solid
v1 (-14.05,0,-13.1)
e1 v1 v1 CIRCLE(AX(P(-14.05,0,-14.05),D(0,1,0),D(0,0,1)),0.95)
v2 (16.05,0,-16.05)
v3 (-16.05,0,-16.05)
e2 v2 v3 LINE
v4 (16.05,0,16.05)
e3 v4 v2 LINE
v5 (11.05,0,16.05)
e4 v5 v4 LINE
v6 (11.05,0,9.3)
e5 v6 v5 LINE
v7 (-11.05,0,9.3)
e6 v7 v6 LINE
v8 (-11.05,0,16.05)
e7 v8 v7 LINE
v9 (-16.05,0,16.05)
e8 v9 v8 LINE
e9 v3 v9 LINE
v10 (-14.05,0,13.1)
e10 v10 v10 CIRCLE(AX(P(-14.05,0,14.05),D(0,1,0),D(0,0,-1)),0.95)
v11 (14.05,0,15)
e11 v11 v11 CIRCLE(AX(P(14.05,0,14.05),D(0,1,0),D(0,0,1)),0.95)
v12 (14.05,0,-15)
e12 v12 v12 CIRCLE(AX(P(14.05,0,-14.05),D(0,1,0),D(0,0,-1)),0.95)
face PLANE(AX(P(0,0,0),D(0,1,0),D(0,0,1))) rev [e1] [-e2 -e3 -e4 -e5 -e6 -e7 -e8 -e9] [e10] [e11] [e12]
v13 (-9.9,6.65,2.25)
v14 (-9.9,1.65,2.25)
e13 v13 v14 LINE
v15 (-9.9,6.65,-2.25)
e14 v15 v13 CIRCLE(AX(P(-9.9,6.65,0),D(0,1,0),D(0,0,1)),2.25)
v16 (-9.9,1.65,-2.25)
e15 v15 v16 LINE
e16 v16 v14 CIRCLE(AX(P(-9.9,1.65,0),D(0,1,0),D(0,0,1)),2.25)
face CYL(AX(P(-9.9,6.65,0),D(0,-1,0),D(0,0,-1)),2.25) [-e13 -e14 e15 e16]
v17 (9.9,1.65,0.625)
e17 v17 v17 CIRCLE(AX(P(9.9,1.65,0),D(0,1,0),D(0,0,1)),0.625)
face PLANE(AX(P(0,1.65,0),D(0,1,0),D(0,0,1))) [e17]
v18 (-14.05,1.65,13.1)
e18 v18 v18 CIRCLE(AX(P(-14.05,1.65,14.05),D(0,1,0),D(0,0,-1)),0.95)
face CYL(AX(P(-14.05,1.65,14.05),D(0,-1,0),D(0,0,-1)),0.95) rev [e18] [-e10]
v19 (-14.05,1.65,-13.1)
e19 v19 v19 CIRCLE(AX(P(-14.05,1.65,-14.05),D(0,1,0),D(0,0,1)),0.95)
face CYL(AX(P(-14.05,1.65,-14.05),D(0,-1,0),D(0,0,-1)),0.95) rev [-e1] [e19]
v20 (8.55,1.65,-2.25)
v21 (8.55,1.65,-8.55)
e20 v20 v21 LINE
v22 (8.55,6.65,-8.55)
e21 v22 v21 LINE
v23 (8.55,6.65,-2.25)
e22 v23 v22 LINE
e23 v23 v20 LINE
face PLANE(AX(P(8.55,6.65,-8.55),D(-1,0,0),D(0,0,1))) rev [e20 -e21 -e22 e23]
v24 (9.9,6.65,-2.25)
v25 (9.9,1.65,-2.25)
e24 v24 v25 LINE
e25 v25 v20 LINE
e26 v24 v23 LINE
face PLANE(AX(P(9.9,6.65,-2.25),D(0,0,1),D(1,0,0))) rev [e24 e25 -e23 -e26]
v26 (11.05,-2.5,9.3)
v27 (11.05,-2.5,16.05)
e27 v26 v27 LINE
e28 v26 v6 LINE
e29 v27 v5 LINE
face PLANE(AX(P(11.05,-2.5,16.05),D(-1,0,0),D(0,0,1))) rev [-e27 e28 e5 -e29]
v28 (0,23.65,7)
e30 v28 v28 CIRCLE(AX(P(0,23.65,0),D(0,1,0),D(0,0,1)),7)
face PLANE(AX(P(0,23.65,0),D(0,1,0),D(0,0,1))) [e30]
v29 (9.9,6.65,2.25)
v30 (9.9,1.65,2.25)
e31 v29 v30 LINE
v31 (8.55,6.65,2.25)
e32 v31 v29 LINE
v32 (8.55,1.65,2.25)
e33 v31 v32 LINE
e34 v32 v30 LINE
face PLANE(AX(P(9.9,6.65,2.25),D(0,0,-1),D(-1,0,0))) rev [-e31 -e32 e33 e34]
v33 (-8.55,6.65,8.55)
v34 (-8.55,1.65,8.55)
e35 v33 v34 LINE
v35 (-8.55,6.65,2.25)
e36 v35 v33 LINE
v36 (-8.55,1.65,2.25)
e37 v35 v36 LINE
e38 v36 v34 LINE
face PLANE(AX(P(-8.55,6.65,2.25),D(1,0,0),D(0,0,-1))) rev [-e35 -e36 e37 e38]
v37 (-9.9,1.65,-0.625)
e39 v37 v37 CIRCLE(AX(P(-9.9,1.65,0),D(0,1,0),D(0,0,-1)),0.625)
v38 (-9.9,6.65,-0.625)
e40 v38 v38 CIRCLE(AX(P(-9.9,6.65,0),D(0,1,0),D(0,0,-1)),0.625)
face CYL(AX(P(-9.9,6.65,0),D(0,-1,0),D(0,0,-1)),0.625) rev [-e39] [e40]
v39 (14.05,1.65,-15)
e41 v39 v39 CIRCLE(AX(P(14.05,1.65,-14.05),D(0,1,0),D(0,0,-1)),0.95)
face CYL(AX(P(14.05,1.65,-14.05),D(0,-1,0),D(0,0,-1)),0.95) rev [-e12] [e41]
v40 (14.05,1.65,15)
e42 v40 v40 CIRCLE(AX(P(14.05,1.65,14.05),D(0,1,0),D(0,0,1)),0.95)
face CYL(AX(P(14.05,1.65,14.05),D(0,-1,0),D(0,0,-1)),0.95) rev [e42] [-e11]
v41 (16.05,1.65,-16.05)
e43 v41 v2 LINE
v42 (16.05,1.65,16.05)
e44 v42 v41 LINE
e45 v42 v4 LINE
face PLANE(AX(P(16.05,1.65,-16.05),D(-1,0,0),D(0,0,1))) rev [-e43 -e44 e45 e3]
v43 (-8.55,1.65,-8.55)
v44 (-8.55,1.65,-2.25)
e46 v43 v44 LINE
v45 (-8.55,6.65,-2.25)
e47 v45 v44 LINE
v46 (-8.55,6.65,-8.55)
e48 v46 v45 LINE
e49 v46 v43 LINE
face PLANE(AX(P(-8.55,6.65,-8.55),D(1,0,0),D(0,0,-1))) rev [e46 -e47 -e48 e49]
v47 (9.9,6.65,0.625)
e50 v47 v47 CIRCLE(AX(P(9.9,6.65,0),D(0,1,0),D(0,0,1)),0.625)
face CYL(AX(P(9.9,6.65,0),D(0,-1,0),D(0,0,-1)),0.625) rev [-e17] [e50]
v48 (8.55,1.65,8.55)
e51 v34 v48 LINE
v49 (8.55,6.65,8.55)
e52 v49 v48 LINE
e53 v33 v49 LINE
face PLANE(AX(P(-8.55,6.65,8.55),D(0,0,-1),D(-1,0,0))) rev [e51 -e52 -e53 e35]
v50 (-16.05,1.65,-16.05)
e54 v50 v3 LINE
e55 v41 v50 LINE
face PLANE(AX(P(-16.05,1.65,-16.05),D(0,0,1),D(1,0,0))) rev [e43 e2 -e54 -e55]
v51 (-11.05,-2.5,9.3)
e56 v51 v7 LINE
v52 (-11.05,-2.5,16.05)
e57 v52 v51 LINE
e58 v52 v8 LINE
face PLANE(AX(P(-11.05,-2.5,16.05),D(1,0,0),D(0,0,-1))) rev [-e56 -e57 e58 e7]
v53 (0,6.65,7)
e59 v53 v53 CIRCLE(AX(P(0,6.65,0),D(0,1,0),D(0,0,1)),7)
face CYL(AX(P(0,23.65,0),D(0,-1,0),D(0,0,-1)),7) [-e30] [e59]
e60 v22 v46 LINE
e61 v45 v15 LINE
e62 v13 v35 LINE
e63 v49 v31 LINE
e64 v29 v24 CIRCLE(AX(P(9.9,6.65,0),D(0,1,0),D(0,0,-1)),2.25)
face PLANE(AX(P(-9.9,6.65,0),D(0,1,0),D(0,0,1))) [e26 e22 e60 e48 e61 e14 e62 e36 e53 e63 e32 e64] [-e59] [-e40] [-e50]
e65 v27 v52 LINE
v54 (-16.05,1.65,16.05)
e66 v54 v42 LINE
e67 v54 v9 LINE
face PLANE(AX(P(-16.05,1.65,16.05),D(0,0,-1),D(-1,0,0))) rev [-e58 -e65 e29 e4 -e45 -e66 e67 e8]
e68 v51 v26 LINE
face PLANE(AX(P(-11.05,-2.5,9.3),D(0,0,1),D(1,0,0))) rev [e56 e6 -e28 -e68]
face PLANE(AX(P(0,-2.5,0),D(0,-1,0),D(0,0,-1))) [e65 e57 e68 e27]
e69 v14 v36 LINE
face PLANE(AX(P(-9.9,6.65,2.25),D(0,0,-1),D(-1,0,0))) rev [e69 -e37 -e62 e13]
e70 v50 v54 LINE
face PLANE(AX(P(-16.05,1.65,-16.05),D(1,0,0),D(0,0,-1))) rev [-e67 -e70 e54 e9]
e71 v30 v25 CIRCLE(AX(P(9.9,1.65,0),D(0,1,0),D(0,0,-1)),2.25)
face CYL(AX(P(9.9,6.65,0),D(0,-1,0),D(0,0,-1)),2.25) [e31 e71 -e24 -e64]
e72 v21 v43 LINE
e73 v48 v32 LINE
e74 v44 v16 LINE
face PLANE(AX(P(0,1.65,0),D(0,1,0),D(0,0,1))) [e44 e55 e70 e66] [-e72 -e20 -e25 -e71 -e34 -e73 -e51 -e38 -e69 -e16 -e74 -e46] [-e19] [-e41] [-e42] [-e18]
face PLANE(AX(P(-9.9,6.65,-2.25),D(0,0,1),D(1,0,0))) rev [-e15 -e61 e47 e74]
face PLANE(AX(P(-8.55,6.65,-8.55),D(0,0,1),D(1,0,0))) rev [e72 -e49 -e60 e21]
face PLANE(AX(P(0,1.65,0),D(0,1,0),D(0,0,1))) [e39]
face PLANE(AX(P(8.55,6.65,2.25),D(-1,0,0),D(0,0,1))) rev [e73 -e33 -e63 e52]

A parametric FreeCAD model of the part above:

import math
import FreeCAD as App
import Part
import Sketcher
from FreeCAD import Vector
Q = App.Units.Quantity


def add_polygon(sketch, points):
    """Adds a closed chain of lines whose ends are joined by coincident constraints."""
    first, n = sketch.GeometryCount, len(points)
    for a, b in zip(points, points[1:] + points[:1]):
        sketch.addGeometry(Part.LineSegment(App.Vector(*a, 0), App.Vector(*b, 0)), False)
    for i in range(n):
        sketch.addConstraint(Sketcher.Constraint("Coincident", first + i, 2, first + (i + 1) % n, 1))

doc = App.newDocument("Part")
body = doc.addObject("PartDesign::Body", "Body")

# Sketch on XZ plane
sketch1 = body.newObject("Sketcher::SketchObject", "Sketch")
sketch1.AttachmentSupport = (doc.getObject("XZ_Plane"), [""])
sketch1.MapMode = "FlatFace"
add_polygon(sketch1, [(-16.1, -16.1), (-16.1, 16.1), (16.1, 16.1), (16.1, -16.1)])  # lines 0-3
sketch1.addGeometry(Part.Circle(Vector(-14.1, 14.1, 0), Vector(0, 0, 1), 0.9), False)  # 4
sketch1.addGeometry(Part.Circle(Vector(14.1, 14.1, 0), Vector(0, 0, 1), 0.9), False)  # 5
sketch1.addGeometry(Part.Circle(Vector(-14.1, -14.1, 0), Vector(0, 0, 1), 0.9), False)  # 6
sketch1.addGeometry(Part.Circle(Vector(14.1, -14.1, 0), Vector(0, 0, 1), 0.9), False)  # 7
sketch1.addConstraint(Sketcher.Constraint("Vertical", 0))
sketch1.addConstraint(Sketcher.Constraint("Horizontal", 1))
sketch1.addConstraint(Sketcher.Constraint("Vertical", 2))
sketch1.addConstraint(Sketcher.Constraint("Horizontal", 3))
sketch1.addConstraint(Sketcher.Constraint("Equal", 4, 5))
sketch1.addConstraint(Sketcher.Constraint("Equal", 5, 6))
sketch1.addConstraint(Sketcher.Constraint("Equal", 6, 7))
sketch1.addConstraint(Sketcher.Constraint("Symmetric", 5, 3, 6, 3, -1, 1))
sketch1.addConstraint(Sketcher.Constraint("Symmetric", 4, 3, 7, 3, -1, 1))
sketch1.addConstraint(Sketcher.Constraint("Symmetric", 0, 2, 2, 2, -1, 1))
sketch1.addConstraint(Sketcher.Constraint("Symmetric", 4, 3, 5, 3, -2))
sketch1.addConstraint(Sketcher.Constraint("Equal", 3, 0))
sketch1.addConstraint(Sketcher.Constraint("Diameter", 4, Q("1.9 mm")))
sketch1.addConstraint(Sketcher.Constraint("DistanceX", 1, 1, 1, 2, Q("32.1 mm")))
sketch1.addConstraint(Sketcher.Constraint("DistanceX", 0, 2, 4, 3, Q("2 mm")))
sketch1.addConstraint(Sketcher.Constraint("DistanceY", 4, 3, 0, 2, Q("2 mm")))
pad1 = body.newObject("PartDesign::Pad", "Pad")
pad1.Profile = sketch1
pad1.Length = 1.65
pad1.Reversed = True

# Sketch on XZ plane
sketch2 = body.newObject("Sketcher::SketchObject", "Sketch001")
sketch2.AttachmentSupport = (doc.getObject("XZ_Plane"), [""])
sketch2.MapMode = "FlatFace"
add_polygon(sketch2, [(-11, 16), (-11, 9), (11, 9), (11, 16)])  # lines 0-3
sketch2.addConstraint(Sketcher.Constraint("Vertical", 0))
sketch2.addConstraint(Sketcher.Constraint("Horizontal", 1))
sketch2.addConstraint(Sketcher.Constraint("Vertical", 2))
sketch2.addConstraint(Sketcher.Constraint("Horizontal", 3))
sketch2.addConstraint(Sketcher.Constraint("DistanceX", 1, 1, 1, 2, Q("22.1 mm")))
sketch2.addConstraint(Sketcher.Constraint("DistanceY", 0, 2, 0, 1, Q("6.75 mm")))
sketch2.addConstraint(Sketcher.Constraint("DistanceY", -1, 1, 0, 2, Q("9.3 mm")))
sketch2.addConstraint(Sketcher.Constraint("DistanceX", 0, 2, -1, 1, Q("11.05 mm")))
pad2 = body.newObject("PartDesign::Pad", "Pad001")
pad2.Profile = sketch2
pad2.Length = 2.5

# Sketch on XZ plane
sketch3 = body.newObject("Sketcher::SketchObject", "Sketch002")
sketch3.AttachmentSupport = (doc.getObject("XZ_Plane"), [""])
sketch3.MapMode = "FlatFace"
sketch3.AttachmentOffset = App.Placement(Vector(0, 0, -1.65), App.Rotation())
sketch3.addGeometry(Part.LineSegment(Vector(9.9, -2.2, 0), Vector(8.6, -2.2, 0)), False)
sketch3.addGeometry(Part.LineSegment(Vector(8.6, -2.2, 0), Vector(8.6, -8.6, 0)), False)
sketch3.addGeometry(Part.LineSegment(Vector(8.6, -8.6, 0), Vector(-8.6, -8.6, 0)), False)
sketch3.addGeometry(Part.LineSegment(Vector(-8.6, -8.6, 0), Vector(-8.6, -2.2, 0)), False)
sketch3.addGeometry(Part.LineSegment(Vector(-8.6, -2.2, 0), Vector(-9.9, -2.2, 0)), False)
sketch3.addGeometry(Part.ArcOfCircle(Part.Circle(Vector(-9.9, 0, 0), Vector(0, 0, 1), 2.2), math.radians(90), math.radians(270)), False)
sketch3.addGeometry(Part.LineSegment(Vector(-9.9, 2.2, 0), Vector(-8.6, 2.2, 0)), False)
sketch3.addGeometry(Part.LineSegment(Vector(-8.6, 2.2, 0), Vector(-8.6, 8.6, 0)), False)
sketch3.addGeometry(Part.LineSegment(Vector(-8.6, 8.6, 0), Vector(8.6, 8.6, 0)), False)
sketch3.addGeometry(Part.LineSegment(Vector(8.6, 8.6, 0), Vector(8.6, 2.2, 0)), False)
sketch3.addGeometry(Part.LineSegment(Vector(8.6, 2.2, 0), Vector(9.9, 2.2, 0)), False)
sketch3.addGeometry(Part.ArcOfCircle(Part.Circle(Vector(9.9, 0, 0), Vector(0, 0, 1), 2.2), math.radians(-90), math.radians(90)), False)
sketch3.addGeometry(Part.Circle(Vector(-9.9, 0, 0), Vector(0, 0, 1), 0.6), False)
sketch3.addGeometry(Part.Circle(Vector(9.9, 0, 0), Vector(0, 0, 1), 0.6), False)
sketch3.addConstraint(Sketcher.Constraint("Coincident", 0, 2, 1, 1))
sketch3.addConstraint(Sketcher.Constraint("Coincident", 1, 2, 2, 1))
sketch3.addConstraint(Sketcher.Constraint("Coincident", 2, 2, 3, 1))
sketch3.addConstraint(Sketcher.Constraint("Coincident", 3, 2, 4, 1))
sketch3.addConstraint(Sketcher.Constraint("Tangent", 4, 2, 5, 2))
sketch3.addConstraint(Sketcher.Constraint("Tangent", 5, 1, 6, 1))
sketch3.addConstraint(Sketcher.Constraint("Coincident", 6, 2, 7, 1))
sketch3.addConstraint(Sketcher.Constraint("Coincident", 7, 2, 8, 1))
sketch3.addConstraint(Sketcher.Constraint("Coincident", 8, 2, 9, 1))
sketch3.addConstraint(Sketcher.Constraint("Coincident", 9, 2, 10, 1))
sketch3.addConstraint(Sketcher.Constraint("Tangent", 10, 2, 11, 2))
sketch3.addConstraint(Sketcher.Constraint("Tangent", 11, 1, 0, 1))
sketch3.addConstraint(Sketcher.Constraint("Horizontal", 0))
sketch3.addConstraint(Sketcher.Constraint("Vertical", 1))
sketch3.addConstraint(Sketcher.Constraint("Horizontal", 2))
sketch3.addConstraint(Sketcher.Constraint("Vertical", 3))
sketch3.addConstraint(Sketcher.Constraint("Horizontal", 4))
sketch3.addConstraint(Sketcher.Constraint("Horizontal", 6))
sketch3.addConstraint(Sketcher.Constraint("Vertical", 7))
sketch3.addConstraint(Sketcher.Constraint("Horizontal", 8))
sketch3.addConstraint(Sketcher.Constraint("Vertical", 9))
sketch3.addConstraint(Sketcher.Constraint("Horizontal", 10))
sketch3.addConstraint(Sketcher.Constraint("Coincident", 12, 3, 5, 3))
sketch3.addConstraint(Sketcher.Constraint("Coincident", 13, 3, 11, 3))
sketch3.addConstraint(Sketcher.Constraint("Equal", 5, 11))
sketch3.addConstraint(Sketcher.Constraint("Equal", 12, 13))
sketch3.addConstraint(Sketcher.Constraint("Symmetric", 5, 3, 11, 3, -1, 1))
sketch3.addConstraint(Sketcher.Constraint("Symmetric", 1, 2, 7, 2, -1, 1))
sketch3.addConstraint(Sketcher.Constraint("Symmetric", 0, 2, 3, 2, -2))
sketch3.addConstraint(Sketcher.Constraint("Vertical", 1, 2, 8, 2))
sketch3.addConstraint(Sketcher.Constraint("Diameter", 12, Q("1.25 mm")))
sketch3.addConstraint(Sketcher.Constraint("Radius", 5, Q("2.25 mm")))
sketch3.addConstraint(Sketcher.Constraint("DistanceX", 2, 2, 2, 1, Q("17.1 mm")))
sketch3.addConstraint(Sketcher.Constraint("DistanceY", 1, 2, 1, 1, Q("6.3 mm")))
sketch3.addConstraint(Sketcher.Constraint("DistanceX", 0, 2, 0, 1, Q("1.35 mm")))
pad3 = body.newObject("PartDesign::Pad", "Pad002")
pad3.Profile = sketch3
pad3.Length = 5
pad3.Reversed = True

# Sketch on XZ plane
sketch4 = body.newObject("Sketcher::SketchObject", "Sketch003")
sketch4.AttachmentSupport = (doc.getObject("XZ_Plane"), [""])
sketch4.MapMode = "FlatFace"
sketch4.AttachmentOffset = App.Placement(Vector(0, 0, -6.65), App.Rotation())
sketch4.addGeometry(Part.Circle(Vector(0, 0, 0), Vector(0, 0, 1), 7), False)
sketch4.addConstraint(Sketcher.Constraint("Coincident", 0, 3, -1, 1))
sketch4.addConstraint(Sketcher.Constraint("Diameter", 0, Q("14 mm")))
pad4 = body.newObject("PartDesign::Pad", "Pad003")
pad4.Profile = sketch4
pad4.Length = 17
pad4.Reversed = True

doc.recompute()
